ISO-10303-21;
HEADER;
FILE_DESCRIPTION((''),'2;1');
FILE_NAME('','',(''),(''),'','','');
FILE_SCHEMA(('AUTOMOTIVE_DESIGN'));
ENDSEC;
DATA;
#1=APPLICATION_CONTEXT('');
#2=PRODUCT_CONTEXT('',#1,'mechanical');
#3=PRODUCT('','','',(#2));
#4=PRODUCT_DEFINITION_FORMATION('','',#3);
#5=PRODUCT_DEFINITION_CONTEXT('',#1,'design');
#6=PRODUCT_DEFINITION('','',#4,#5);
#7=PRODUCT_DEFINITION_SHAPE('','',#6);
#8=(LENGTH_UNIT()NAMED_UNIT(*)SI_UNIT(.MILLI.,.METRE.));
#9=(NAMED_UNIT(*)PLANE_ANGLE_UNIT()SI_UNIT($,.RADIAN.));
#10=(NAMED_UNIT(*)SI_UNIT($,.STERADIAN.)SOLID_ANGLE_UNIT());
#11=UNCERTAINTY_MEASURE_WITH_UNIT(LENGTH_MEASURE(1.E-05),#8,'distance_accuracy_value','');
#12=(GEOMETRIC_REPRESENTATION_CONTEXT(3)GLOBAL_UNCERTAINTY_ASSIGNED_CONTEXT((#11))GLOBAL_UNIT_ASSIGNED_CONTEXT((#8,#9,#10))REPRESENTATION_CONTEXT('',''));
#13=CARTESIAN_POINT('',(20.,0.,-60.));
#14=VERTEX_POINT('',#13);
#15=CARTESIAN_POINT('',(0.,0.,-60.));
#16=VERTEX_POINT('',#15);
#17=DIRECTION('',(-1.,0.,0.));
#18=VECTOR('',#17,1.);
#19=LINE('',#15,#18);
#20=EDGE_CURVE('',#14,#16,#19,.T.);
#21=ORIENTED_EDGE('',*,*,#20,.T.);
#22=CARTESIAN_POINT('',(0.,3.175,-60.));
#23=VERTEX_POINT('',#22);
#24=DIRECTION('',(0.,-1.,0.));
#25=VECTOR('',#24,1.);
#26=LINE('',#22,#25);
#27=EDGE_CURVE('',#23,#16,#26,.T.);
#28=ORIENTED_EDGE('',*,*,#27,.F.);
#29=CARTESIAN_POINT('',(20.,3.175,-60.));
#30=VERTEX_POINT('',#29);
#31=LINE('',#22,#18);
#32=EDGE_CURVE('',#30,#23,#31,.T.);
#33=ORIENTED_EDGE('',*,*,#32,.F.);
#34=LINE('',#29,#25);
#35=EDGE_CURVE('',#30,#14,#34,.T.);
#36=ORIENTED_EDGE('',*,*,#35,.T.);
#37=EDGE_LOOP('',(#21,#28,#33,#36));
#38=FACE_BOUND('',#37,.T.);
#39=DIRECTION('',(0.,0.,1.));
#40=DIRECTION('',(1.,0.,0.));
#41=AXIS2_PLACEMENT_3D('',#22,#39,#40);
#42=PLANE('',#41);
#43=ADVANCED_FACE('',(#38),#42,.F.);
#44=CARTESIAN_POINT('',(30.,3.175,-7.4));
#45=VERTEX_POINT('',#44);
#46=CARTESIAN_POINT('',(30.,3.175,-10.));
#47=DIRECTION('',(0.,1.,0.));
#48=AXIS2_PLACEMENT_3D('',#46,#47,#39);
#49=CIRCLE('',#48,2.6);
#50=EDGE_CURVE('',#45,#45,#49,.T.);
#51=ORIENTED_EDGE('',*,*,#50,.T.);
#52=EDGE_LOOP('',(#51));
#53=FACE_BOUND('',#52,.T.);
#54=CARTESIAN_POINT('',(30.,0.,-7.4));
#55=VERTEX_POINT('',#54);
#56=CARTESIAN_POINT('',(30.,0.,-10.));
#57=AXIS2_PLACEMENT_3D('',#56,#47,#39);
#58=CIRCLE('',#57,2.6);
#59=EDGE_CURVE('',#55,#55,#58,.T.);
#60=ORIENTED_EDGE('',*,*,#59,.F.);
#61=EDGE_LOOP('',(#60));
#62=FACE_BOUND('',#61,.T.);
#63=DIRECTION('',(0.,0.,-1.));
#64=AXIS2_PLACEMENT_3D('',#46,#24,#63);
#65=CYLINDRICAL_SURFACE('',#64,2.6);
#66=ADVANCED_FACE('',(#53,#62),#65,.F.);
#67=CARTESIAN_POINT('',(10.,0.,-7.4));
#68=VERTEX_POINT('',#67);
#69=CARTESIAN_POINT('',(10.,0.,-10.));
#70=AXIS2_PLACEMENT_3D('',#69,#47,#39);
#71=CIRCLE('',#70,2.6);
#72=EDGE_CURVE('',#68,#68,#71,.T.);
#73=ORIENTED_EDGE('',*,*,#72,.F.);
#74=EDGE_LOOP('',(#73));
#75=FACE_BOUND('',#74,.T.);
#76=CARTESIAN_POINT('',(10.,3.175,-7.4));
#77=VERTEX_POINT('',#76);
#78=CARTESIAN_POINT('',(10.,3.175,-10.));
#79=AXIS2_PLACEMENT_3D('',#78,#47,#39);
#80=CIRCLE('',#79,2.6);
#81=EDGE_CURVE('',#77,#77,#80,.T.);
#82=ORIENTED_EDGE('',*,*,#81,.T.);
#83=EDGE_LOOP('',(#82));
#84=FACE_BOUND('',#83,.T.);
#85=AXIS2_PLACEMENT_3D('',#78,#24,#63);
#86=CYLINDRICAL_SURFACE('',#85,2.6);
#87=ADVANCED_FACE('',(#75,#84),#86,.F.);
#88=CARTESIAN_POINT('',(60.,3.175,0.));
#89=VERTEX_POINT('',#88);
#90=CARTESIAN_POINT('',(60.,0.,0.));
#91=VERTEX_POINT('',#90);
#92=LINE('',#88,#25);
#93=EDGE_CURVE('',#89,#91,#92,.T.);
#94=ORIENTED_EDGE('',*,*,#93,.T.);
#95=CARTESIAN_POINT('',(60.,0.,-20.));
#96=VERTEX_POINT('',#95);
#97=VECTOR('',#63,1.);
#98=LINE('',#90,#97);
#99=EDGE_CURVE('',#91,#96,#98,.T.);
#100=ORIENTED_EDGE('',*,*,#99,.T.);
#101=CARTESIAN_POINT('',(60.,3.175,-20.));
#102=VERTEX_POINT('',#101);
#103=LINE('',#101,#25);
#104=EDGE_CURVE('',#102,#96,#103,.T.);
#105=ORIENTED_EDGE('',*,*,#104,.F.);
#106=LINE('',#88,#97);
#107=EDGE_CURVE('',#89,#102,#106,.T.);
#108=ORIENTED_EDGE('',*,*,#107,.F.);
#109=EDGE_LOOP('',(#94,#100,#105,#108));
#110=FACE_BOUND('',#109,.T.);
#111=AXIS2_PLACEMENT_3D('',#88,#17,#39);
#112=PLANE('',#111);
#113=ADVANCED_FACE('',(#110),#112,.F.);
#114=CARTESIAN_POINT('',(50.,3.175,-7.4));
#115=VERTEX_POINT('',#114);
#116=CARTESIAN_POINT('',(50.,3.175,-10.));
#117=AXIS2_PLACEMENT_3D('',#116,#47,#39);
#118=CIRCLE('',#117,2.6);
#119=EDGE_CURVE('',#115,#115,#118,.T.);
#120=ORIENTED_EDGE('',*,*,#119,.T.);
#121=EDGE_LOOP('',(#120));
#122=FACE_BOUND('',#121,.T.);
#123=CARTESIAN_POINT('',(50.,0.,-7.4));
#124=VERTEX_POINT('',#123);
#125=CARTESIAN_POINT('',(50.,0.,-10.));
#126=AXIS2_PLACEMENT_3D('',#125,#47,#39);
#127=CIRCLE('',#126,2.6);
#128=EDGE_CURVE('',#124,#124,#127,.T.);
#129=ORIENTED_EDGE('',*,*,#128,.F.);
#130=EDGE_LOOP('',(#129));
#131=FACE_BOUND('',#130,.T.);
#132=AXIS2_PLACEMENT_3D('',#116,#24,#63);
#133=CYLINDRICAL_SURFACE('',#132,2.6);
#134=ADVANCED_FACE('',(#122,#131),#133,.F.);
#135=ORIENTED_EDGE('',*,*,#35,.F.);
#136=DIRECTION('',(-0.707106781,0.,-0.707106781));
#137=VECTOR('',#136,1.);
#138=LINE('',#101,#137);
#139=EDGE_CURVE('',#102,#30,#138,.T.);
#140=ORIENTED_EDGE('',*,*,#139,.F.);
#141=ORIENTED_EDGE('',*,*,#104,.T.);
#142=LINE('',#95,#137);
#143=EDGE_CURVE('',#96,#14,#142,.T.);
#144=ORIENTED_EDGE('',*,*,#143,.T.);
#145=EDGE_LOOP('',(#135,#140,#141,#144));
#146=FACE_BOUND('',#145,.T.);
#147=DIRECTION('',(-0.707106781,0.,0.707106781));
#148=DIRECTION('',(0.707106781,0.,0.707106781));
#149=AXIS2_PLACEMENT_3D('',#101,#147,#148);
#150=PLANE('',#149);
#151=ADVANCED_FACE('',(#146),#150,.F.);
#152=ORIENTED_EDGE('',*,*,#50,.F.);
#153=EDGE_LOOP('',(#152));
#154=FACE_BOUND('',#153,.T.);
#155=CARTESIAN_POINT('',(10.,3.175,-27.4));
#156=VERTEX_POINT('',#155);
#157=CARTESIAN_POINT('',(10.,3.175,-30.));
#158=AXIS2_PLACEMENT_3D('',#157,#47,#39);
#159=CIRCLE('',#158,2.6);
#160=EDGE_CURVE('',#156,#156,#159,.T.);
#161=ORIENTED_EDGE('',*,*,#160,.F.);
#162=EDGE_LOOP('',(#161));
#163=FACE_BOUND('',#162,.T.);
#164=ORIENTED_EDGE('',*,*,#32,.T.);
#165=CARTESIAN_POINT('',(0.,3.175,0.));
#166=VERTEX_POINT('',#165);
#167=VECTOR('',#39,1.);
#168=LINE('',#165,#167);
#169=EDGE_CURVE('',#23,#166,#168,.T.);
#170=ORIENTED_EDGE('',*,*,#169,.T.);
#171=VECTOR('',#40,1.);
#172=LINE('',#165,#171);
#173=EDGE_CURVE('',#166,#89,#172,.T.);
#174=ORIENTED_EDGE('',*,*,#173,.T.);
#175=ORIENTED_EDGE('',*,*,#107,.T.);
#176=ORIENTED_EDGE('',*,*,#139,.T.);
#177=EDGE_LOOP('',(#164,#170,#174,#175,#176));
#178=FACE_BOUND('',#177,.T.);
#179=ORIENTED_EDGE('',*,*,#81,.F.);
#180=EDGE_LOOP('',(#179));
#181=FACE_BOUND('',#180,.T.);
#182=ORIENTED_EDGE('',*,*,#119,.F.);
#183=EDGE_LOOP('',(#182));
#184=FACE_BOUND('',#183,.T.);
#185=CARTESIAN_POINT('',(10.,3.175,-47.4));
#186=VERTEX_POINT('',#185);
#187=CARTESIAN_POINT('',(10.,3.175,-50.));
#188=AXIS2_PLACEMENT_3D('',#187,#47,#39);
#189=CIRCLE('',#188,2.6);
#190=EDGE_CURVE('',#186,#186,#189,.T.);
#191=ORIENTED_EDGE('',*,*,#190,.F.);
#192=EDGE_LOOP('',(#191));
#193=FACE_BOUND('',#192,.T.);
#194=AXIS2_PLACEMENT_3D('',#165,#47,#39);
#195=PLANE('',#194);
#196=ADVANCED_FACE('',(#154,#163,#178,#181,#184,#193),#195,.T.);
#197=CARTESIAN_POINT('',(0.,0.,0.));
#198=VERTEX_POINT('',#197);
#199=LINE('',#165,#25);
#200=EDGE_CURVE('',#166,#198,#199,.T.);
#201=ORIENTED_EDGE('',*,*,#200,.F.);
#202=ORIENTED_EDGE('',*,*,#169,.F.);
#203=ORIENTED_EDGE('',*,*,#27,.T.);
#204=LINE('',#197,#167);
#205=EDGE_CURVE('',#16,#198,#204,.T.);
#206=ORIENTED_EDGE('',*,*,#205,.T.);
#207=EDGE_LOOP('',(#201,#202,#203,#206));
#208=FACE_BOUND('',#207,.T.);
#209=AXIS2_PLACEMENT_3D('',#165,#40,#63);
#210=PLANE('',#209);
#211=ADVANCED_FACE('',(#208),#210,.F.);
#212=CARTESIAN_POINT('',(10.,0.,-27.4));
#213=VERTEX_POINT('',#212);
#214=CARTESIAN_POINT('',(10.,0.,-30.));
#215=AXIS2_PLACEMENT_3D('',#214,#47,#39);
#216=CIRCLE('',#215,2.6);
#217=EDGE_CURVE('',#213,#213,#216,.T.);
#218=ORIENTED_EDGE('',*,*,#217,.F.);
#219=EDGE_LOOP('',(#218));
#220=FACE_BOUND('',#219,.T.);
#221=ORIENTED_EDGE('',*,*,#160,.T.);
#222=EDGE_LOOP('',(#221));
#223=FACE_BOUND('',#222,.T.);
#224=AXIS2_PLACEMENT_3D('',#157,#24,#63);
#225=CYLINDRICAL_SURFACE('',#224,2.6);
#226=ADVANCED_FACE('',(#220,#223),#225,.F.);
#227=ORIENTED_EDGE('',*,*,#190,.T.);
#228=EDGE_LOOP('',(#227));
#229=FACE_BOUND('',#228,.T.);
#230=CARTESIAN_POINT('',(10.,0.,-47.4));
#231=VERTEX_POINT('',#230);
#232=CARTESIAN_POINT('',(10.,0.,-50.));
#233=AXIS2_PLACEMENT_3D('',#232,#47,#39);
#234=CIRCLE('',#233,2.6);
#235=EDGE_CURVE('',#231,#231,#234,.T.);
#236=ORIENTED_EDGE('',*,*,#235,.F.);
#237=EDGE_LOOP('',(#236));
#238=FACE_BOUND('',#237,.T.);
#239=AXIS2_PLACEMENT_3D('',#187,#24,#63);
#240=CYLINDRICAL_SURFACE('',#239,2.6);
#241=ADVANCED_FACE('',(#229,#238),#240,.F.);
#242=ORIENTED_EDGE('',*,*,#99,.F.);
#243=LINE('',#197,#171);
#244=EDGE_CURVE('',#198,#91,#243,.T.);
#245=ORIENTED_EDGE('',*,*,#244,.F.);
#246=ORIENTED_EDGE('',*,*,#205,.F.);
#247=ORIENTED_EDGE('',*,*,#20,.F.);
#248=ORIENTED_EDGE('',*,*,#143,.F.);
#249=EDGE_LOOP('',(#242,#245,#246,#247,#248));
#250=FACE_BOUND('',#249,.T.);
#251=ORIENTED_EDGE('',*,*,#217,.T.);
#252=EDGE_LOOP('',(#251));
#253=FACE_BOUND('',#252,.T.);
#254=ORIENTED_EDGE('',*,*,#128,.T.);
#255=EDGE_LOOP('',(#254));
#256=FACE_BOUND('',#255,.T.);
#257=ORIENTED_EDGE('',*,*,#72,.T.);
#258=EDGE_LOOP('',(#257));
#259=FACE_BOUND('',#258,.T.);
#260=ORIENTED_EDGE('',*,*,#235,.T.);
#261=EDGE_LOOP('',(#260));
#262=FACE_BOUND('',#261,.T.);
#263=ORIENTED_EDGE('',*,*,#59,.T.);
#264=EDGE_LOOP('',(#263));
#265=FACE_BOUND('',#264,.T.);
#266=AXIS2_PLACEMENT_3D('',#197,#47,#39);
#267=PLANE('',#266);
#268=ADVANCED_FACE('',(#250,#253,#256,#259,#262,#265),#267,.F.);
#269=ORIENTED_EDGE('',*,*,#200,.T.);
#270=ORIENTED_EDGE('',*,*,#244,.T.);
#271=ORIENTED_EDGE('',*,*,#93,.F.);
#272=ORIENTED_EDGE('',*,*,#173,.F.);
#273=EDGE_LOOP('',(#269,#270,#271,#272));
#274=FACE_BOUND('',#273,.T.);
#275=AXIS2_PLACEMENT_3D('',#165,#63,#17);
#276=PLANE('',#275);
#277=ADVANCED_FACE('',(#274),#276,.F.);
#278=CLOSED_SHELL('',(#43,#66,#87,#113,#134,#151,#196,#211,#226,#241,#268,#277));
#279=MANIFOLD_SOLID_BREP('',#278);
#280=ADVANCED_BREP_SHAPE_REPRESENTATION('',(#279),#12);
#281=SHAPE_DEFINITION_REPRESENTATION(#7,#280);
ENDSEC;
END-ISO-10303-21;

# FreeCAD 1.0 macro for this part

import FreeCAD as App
import Part
import Sketcher
from FreeCAD import Vector
Q = App.Units.Quantity

doc = App.newDocument("Part")
params = doc.addObject("Spreadsheet::Sheet", "Params")
for row, (alias, value) in enumerate([
    ("sketch1_diameter", "5.2 mm"),
    ("sketch1_width", "20 mm"),
    ("sketch1_width2", "60 mm"),
    ("pad1_length", "3.175 mm"),
], start=1):
    params.set(f"A{row}", alias)
    params.set(f"B{row}", "=" + value)
    params.setAlias(f"B{row}", alias)

body = doc.addObject("PartDesign::Body", "Body")

sketch1 = body.newObject("Sketcher::SketchObject", "Sketch")
sketch1.AttachmentSupport = (doc.getObject("XZ_Plane"), [""])
sketch1.MapMode = "FlatFace"
sketch1.addGeometry(Part.LineSegment(Vector(60, 0, 0), Vector(60, -20, 0)), False)
sketch1.addGeometry(Part.LineSegment(Vector(60, -20, 0), Vector(20, -60, 0)), False)
sketch1.addGeometry(Part.LineSegment(Vector(20, -60, 0), Vector(0, -60, 0)), False)
sketch1.addGeometry(Part.LineSegment(Vector(0, -60, 0), Vector(0, 0, 0)), False)
sketch1.addGeometry(Part.LineSegment(Vector(0, 0, 0), Vector(60, 0, 0)), False)
sketch1.addGeometry(Part.Circle(Vector(10, -10, 0), Vector(0, 0, 1), 2.6), False)
sketch1.addGeometry(Part.Circle(Vector(30, -10, 0), Vector(0, 0, 1), 2.6), False)
sketch1.addGeometry(Part.Circle(Vector(50, -10, 0), Vector(0, 0, 1), 2.6), False)
sketch1.addGeometry(Part.Circle(Vector(10, -30, 0), Vector(0, 0, 1), 2.6), False)
sketch1.addGeometry(Part.Circle(Vector(10, -50, 0), Vector(0, 0, 1), 2.6), False)
sketch1.addConstraint(Sketcher.Constraint("Coincident", 0, 2, 1, 1))
sketch1.addConstraint(Sketcher.Constraint("Coincident", 1, 2, 2, 1))
sketch1.addConstraint(Sketcher.Constraint("Coincident", 2, 2, 3, 1))
sketch1.addConstraint(Sketcher.Constraint("Coincident", 3, 2, 4, 1))
sketch1.addConstraint(Sketcher.Constraint("Coincident", 4, 2, 0, 1))
sketch1.addConstraint(Sketcher.Constraint("Vertical", 0))
sketch1.addConstraint(Sketcher.Constraint("Horizontal", 2))
sketch1.addConstraint(Sketcher.Constraint("Vertical", 3))
sketch1.addConstraint(Sketcher.Constraint("Horizontal", 4))
sketch1.addConstraint(Sketcher.Constraint("Coincident", 3, 2, -1, 1))
sketch1.addConstraint(Sketcher.Constraint("Equal", 5, 6))
sketch1.addConstraint(Sketcher.Constraint("Equal", 6, 7))
sketch1.addConstraint(Sketcher.Constraint("Equal", 7, 8))
sketch1.addConstraint(Sketcher.Constraint("Equal", 8, 9))
sketch1.addConstraint(Sketcher.Constraint("Horizontal", 5, 3, 6, 3))
sketch1.addConstraint(Sketcher.Constraint("Horizontal", 6, 3, 7, 3))
sketch1.addConstraint(Sketcher.Constraint("Vertical", 5, 3, 8, 3))
sketch1.addConstraint(Sketcher.Constraint("Vertical", 8, 3, 9, 3))
sketch1.addConstraint(Sketcher.Constraint("Equal", 2, 0))
sketch1.addConstraint(Sketcher.Constraint("Equal", 4, 3))
sketch1.addConstraint(Sketcher.Constraint("Diameter", 5, Q("5.2 mm")))
sketch1.addConstraint(Sketcher.Constraint("DistanceX", 2, 2, 2, 1, Q("20 mm")))
sketch1.addConstraint(Sketcher.Constraint("DistanceX", 4, 1, 4, 2, Q("60 mm")))
sketch1.addConstraint(Sketcher.Constraint("DistanceX", -1, 1, 5, 3, Q("10 mm")))
sketch1.addConstraint(Sketcher.Constraint("DistanceY", 5, 3, -1, 1, Q("10 mm")))
sketch1.addConstraint(Sketcher.Constraint("DistanceX", -1, 1, 6, 3, Q("30 mm")))
sketch1.addConstraint(Sketcher.Constraint("DistanceX", -1, 1, 7, 3, Q("50 mm")))
sketch1.addConstraint(Sketcher.Constraint("DistanceY", 8, 3, -1, 1, Q("30 mm")))
sketch1.addConstraint(Sketcher.Constraint("DistanceY", 9, 3, -1, 1, Q("50 mm")))
sketch1.setExpression("Constraints[20]", "Params.sketch1_diameter")
sketch1.setExpression("Constraints[21]", "Params.sketch1_width")
sketch1.setExpression("Constraints[22]", "Params.sketch1_width2")
pad1 = body.newObject("PartDesign::Pad", "Pad")
pad1.Profile = sketch1
pad1.setExpression("Length", "Params.pad1_length")
pad1.Reversed = True

doc.recompute()
